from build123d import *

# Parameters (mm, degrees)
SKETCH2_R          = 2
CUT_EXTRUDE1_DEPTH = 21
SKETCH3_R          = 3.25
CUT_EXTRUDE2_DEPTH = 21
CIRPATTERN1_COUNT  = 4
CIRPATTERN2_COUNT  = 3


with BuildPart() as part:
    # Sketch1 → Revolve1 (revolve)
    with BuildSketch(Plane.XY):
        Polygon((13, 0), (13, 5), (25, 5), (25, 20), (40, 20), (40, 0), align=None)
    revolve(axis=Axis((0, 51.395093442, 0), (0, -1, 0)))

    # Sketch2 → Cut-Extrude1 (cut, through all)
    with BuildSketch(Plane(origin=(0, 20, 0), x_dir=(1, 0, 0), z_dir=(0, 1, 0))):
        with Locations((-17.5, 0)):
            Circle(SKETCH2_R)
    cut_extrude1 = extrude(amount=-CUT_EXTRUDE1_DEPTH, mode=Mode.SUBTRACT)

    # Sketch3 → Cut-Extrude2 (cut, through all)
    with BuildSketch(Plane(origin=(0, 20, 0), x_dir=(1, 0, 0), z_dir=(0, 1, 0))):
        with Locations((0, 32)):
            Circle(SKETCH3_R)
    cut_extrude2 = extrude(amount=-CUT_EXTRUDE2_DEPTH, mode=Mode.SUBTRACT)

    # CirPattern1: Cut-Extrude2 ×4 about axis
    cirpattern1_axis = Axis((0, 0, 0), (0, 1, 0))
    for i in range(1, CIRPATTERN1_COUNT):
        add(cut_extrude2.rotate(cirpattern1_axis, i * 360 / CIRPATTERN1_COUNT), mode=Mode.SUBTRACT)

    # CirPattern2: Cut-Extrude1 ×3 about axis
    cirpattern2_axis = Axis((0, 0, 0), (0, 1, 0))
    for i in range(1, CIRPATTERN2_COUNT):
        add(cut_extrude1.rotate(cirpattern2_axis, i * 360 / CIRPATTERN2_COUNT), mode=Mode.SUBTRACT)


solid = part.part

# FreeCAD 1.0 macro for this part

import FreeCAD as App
import Part
import Sketcher
Q = App.Units.Quantity

doc = App.newDocument("Part")
body = doc.addObject("PartDesign::Body", "Body")

sketch1 = body.newObject("Sketcher::SketchObject", "Sketch")
sketch1.AttachmentSupport = (doc.getObject("XY_Plane"), [""])
sketch1.MapMode = "FlatFace"
sketch1.addGeometry([
    Part.LineSegment(App.Vector(13, 5, 0), App.Vector(13, 0, 0)),
    Part.LineSegment(App.Vector(13, 0, 0), App.Vector(40, 0, 0)),
    Part.LineSegment(App.Vector(40, 0, 0), App.Vector(40, 20, 0)),
    Part.LineSegment(App.Vector(40, 20, 0), App.Vector(25, 20, 0)),
    Part.LineSegment(App.Vector(25, 20, 0), App.Vector(25, 5, 0)),
    Part.LineSegment(App.Vector(25, 5, 0), App.Vector(13, 5, 0)),
], False)
sketch1.addConstraint([
    Sketcher.Constraint("Coincident", 0, 2, 1, 1),
    Sketcher.Constraint("Coincident", 1, 2, 2, 1),
    Sketcher.Constraint("Coincident", 2, 2, 3, 1),
    Sketcher.Constraint("Coincident", 3, 2, 4, 1),
    Sketcher.Constraint("Coincident", 4, 2, 5, 1),
    Sketcher.Constraint("Coincident", 5, 2, 0, 1),
    Sketcher.Constraint("Vertical", 0),
    Sketcher.Constraint("Horizontal", 1),
    Sketcher.Constraint("Vertical", 2),
    Sketcher.Constraint("Horizontal", 3),
    Sketcher.Constraint("Vertical", 4),
    Sketcher.Constraint("Horizontal", 5),
    Sketcher.Constraint("PointOnObject", 0, 2, -1),
    Sketcher.Constraint("Equal", 3, 4),
    Sketcher.Constraint("DistanceX", 1, 1, 1, 2, Q("27 mm")),
    Sketcher.Constraint("DistanceX", 3, 2, 3, 1, Q("15 mm")),
    Sketcher.Constraint("DistanceY", 0, 2, 0, 1, Q("5 mm")),
    Sketcher.Constraint("DistanceX", -1, 1, 0, 2, Q("13 mm")),
])
revolution = body.newObject("PartDesign::Revolution", "Revolution")
revolution.Profile = sketch1
revolution.ReferenceAxis = (sketch1, ["V_Axis"])
revolution.Angle = 360

sketch2 = body.newObject("Sketcher::SketchObject", "Sketch001")
sketch2.AttachmentSupport = (doc.getObject("XZ_Plane"), [""])
sketch2.MapMode = "FlatFace"
sketch2.AttachmentOffset = App.Placement(App.Vector(0, 0, -20), App.Rotation())
sketch2.addGeometry(Part.Circle(App.Vector(-17.5, 0, 0), App.Vector(0, 0, 1), 2), False)
sketch2.addConstraint([
    Sketcher.Constraint("PointOnObject", 0, 3, -1),
    Sketcher.Constraint("Diameter", 0, Q("4 mm")),
    Sketcher.Constraint("DistanceX", 0, 3, -1, 1, Q("17.5 mm")),
])
pocket1 = body.newObject("PartDesign::Pocket", "Pocket")
pocket1.Profile = sketch2
pocket1.Type = "ThroughAll"
pocket1.Reversed = True

sketch3 = body.newObject("Sketcher::SketchObject", "Sketch002")
sketch3.AttachmentSupport = (doc.getObject("XZ_Plane"), [""])
sketch3.MapMode = "FlatFace"
sketch3.AttachmentOffset = App.Placement(App.Vector(0, 0, -20), App.Rotation())
sketch3.addGeometry(Part.Circle(App.Vector(0, -32, 0), App.Vector(0, 0, 1), 3.2), False)
sketch3.addConstraint([
    Sketcher.Constraint("PointOnObject", 0, 3, -2),
    Sketcher.Constraint("Diameter", 0, Q("6.5 mm")),
    Sketcher.Constraint("DistanceY", 0, 3, -1, 1, Q("32 mm")),
])
pocket2 = body.newObject("PartDesign::Pocket", "Pocket001")
pocket2.Profile = sketch3
pocket2.Type = "ThroughAll"
pocket2.Reversed = True
doc.recompute()

polarpattern = body.newObject("PartDesign::PolarPattern", "PolarPattern")
polarpattern.Originals = [pocket2]
polarpattern.Axis = (doc.getObject("Y_Axis"), [""])
polarpattern.Angle = 360
polarpattern.Occurrences = 4
body.Tip = polarpattern
doc.recompute()

polarpattern2 = body.newObject("PartDesign::PolarPattern", "PolarPattern001")
polarpattern2.Originals = [pocket1]
polarpattern2.Axis = (doc.getObject("Y_Axis"), [""])
polarpattern2.Angle = 360
polarpattern2.Occurrences = 3
body.Tip = polarpattern2

doc.recompute()
